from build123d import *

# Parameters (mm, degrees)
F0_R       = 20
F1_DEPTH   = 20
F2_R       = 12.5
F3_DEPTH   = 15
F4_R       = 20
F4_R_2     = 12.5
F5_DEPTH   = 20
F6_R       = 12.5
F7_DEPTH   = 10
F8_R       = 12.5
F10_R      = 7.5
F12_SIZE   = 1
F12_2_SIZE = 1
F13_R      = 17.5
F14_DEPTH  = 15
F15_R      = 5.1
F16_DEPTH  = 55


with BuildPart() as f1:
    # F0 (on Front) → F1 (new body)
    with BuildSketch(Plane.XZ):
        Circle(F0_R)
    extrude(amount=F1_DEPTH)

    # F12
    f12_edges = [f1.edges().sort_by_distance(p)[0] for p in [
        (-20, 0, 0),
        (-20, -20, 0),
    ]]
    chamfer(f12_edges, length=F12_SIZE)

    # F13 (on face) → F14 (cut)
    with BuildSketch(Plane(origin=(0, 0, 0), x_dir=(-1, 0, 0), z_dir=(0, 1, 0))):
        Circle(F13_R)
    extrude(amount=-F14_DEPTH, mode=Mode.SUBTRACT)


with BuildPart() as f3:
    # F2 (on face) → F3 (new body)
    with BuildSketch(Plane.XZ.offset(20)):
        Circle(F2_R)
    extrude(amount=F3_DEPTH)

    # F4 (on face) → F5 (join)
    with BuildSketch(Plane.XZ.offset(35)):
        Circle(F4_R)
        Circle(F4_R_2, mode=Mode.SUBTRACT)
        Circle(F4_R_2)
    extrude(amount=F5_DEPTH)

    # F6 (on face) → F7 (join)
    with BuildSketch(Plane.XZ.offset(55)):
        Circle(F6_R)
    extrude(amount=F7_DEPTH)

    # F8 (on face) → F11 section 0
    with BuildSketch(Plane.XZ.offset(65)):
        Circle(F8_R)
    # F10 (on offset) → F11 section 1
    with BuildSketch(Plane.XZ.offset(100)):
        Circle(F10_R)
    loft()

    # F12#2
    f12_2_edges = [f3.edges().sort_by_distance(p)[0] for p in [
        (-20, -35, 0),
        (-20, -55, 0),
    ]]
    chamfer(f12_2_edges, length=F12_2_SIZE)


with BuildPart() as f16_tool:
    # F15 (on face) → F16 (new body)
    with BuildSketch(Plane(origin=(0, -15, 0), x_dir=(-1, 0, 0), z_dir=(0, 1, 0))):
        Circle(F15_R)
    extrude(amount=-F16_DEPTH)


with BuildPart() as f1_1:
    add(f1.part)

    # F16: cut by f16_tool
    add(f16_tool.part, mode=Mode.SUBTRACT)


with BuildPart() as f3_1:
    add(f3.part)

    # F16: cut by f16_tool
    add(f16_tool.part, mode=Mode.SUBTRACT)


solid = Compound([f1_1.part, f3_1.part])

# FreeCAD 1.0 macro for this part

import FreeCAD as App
import Part
import Sketcher
from FreeCAD import Vector
Q = App.Units.Quantity


def edges_at(feature, points):
    """Names of the edges that pass closest to the given points."""
    edges = feature.Shape.Edges
    near = lambda p: min(range(len(edges)), key=lambda i: edges[i].distToShape(Part.Vertex(*p))[0])
    return sorted({f"Edge{near(p) + 1}" for p in points})

doc = App.newDocument("Part")
params = doc.addObject("Spreadsheet::Sheet", "Params")
for row, (alias, value) in enumerate([
    ("sketch1_diameter", "40 mm"),
    ("pad1_length", "20 mm"),
    ("chamfer_size", "1 mm"),
    ("sketch2_diameter", "35 mm"),
    ("pocket1_length", "15 mm"),
    ("sketch3_diameter", "25 mm"),
    ("pad2_length", "15 mm"),
    ("sketch4_diameter", "40 mm"),
    ("pad3_length", "20 mm"),
    ("sketch5_diameter", "25 mm"),
    ("pad4_length", "10 mm"),
    ("sketch6_diameter", "25 mm"),
    ("sketch7_diameter", "15 mm"),
    ("chamfer2_size", "1 mm"),
    ("sketch8_diameter", "10.2 mm"),
    ("pad5_length", "55 mm"),
], start=1):
    params.set(f"A{row}", alias)
    params.set(f"B{row}", "=" + value)
    params.setAlias(f"B{row}", alias)

body = doc.addObject("PartDesign::Body", "Body")

# Sketch on XZ plane
sketch1 = body.newObject("Sketcher::SketchObject", "Sketch")
sketch1.AttachmentSupport = (doc.getObject("XZ_Plane"), [""])
sketch1.MapMode = "FlatFace"
sketch1.addGeometry(Part.Circle(Vector(0, 0, 0), Vector(0, 0, 1), 20), False)
sketch1.addConstraint(Sketcher.Constraint("Coincident", 0, 3, -1, 1))
sketch1.addConstraint(Sketcher.Constraint("Diameter", 0, Q("40 mm")))
sketch1.setExpression("Constraints[1]", "Params.sketch1_diameter")
pad1 = body.newObject("PartDesign::Pad", "Pad")
pad1.Profile = sketch1
pad1.setExpression("Length", "Params.pad1_length")
doc.recompute()

chamfer = body.newObject("PartDesign::Chamfer", "Chamfer")
chamfer.Base = (pad1, edges_at(pad1, [(-20, 0, 0), (-20, -20, 0)]))
chamfer.setExpression("Size", "Params.chamfer_size")

# Sketch on XZ plane
sketch2 = body.newObject("Sketcher::SketchObject", "Sketch001")
sketch2.AttachmentSupport = (doc.getObject("XZ_Plane"), [""])
sketch2.MapMode = "FlatFace"
sketch2.addGeometry(Part.Circle(Vector(0, 0, 0), Vector(0, 0, 1), 17.5), False)
sketch2.addConstraint(Sketcher.Constraint("Coincident", 0, 3, -1, 1))
sketch2.addConstraint(Sketcher.Constraint("Diameter", 0, Q("35 mm")))
sketch2.setExpression("Constraints[1]", "Params.sketch2_diameter")
pocket1 = body.newObject("PartDesign::Pocket", "Pocket")
pocket1.Profile = sketch2
pocket1.setExpression("Length", "Params.pocket1_length")
pocket1.Reversed = True
body2 = doc.addObject("PartDesign::Body", "Body001")

# Sketch on XZ plane
sketch3 = body2.newObject("Sketcher::SketchObject", "Sketch002")
sketch3.AttachmentSupport = (doc.getObject("XZ_Plane001"), [""])
sketch3.MapMode = "FlatFace"
sketch3.AttachmentOffset = App.Placement(Vector(0, 0, 20), App.Rotation())
sketch3.addGeometry(Part.Circle(Vector(0, 0, 0), Vector(0, 0, 1), 12.5), False)
sketch3.addConstraint(Sketcher.Constraint("Coincident", 0, 3, -1, 1))
sketch3.addConstraint(Sketcher.Constraint("Diameter", 0, Q("25 mm")))
sketch3.setExpression("Constraints[1]", "Params.sketch3_diameter")
pad2 = body2.newObject("PartDesign::Pad", "Pad001")
pad2.Profile = sketch3
pad2.setExpression("Length", "Params.pad2_length")

# Sketch on XZ plane
sketch4 = body2.newObject("Sketcher::SketchObject", "Sketch003")
sketch4.AttachmentSupport = (doc.getObject("XZ_Plane001"), [""])
sketch4.MapMode = "FlatFace"
sketch4.AttachmentOffset = App.Placement(Vector(0, 0, 35), App.Rotation())
sketch4.addGeometry(Part.Circle(Vector(0, 0, 0), Vector(0, 0, 1), 20), False)
sketch4.addConstraint(Sketcher.Constraint("Coincident", 0, 3, -1, 1))
sketch4.addConstraint(Sketcher.Constraint("Diameter", 0, Q("40 mm")))
sketch4.setExpression("Constraints[1]", "Params.sketch4_diameter")
pad3 = body2.newObject("PartDesign::Pad", "Pad002")
pad3.Profile = sketch4
pad3.setExpression("Length", "Params.pad3_length")

# Sketch on XZ plane
sketch5 = body2.newObject("Sketcher::SketchObject", "Sketch004")
sketch5.AttachmentSupport = (doc.getObject("XZ_Plane001"), [""])
sketch5.MapMode = "FlatFace"
sketch5.AttachmentOffset = App.Placement(Vector(0, 0, 55), App.Rotation())
sketch5.addGeometry(Part.Circle(Vector(0, 0, 0), Vector(0, 0, 1), 12.5), False)
sketch5.addConstraint(Sketcher.Constraint("Coincident", 0, 3, -1, 1))
sketch5.addConstraint(Sketcher.Constraint("Diameter", 0, Q("25 mm")))
sketch5.setExpression("Constraints[1]", "Params.sketch5_diameter")
pad4 = body2.newObject("PartDesign::Pad", "Pad003")
pad4.Profile = sketch5
pad4.setExpression("Length", "Params.pad4_length")

# Sketch on XZ plane
sketch6 = body2.newObject("Sketcher::SketchObject", "Sketch005")
sketch6.AttachmentSupport = (doc.getObject("XZ_Plane001"), [""])
sketch6.MapMode = "FlatFace"
sketch6.AttachmentOffset = App.Placement(Vector(0, 0, 65), App.Rotation())
sketch6.addGeometry(Part.Circle(Vector(0, 0, 0), Vector(0, 0, 1), 12.5), False)
sketch6.addConstraint(Sketcher.Constraint("Coincident", 0, 3, -1, 1))
sketch6.addConstraint(Sketcher.Constraint("Diameter", 0, Q("25 mm")))
sketch6.setExpression("Constraints[1]", "Params.sketch6_diameter")

# Sketch on XZ plane
sketch7 = body2.newObject("Sketcher::SketchObject", "Sketch006")
sketch7.AttachmentSupport = (doc.getObject("XZ_Plane001"), [""])
sketch7.MapMode = "FlatFace"
sketch7.AttachmentOffset = App.Placement(Vector(0, 0, 100), App.Rotation())
sketch7.addGeometry(Part.Circle(Vector(0, 0, 0), Vector(0, 0, 1), 7.5), False)
sketch7.addConstraint(Sketcher.Constraint("Coincident", 0, 3, -1, 1))
sketch7.addConstraint(Sketcher.Constraint("Diameter", 0, Q("15 mm")))
sketch7.setExpression("Constraints[1]", "Params.sketch7_diameter")

additiveloft = body2.newObject("PartDesign::AdditiveLoft", "AdditiveLoft")
additiveloft.Profile = sketch6
additiveloft.Sections = [sketch7]
doc.recompute()

chamfer2 = body2.newObject("PartDesign::Chamfer", "Chamfer001")
chamfer2.Base = (additiveloft, edges_at(additiveloft, [(-20, -35, 0), (-20, -55, 0)]))
chamfer2.setExpression("Size", "Params.chamfer2_size")
body3 = doc.addObject("PartDesign::Body", "Body002")

# Sketch on XZ plane
sketch8 = body3.newObject("Sketcher::SketchObject", "Sketch007")
sketch8.AttachmentSupport = (doc.getObject("XZ_Plane002"), [""])
sketch8.MapMode = "FlatFace"
sketch8.AttachmentOffset = App.Placement(Vector(0, 0, 15), App.Rotation())
sketch8.addGeometry(Part.Circle(Vector(0, 0, 0), Vector(0, 0, 1), 5.1), False)
sketch8.addConstraint(Sketcher.Constraint("Coincident", 0, 3, -1, 1))
sketch8.addConstraint(Sketcher.Constraint("Diameter", 0, Q("10.2 mm")))
sketch8.setExpression("Constraints[1]", "Params.sketch8_diameter")
pad5 = body3.newObject("PartDesign::Pad", "Pad004")
pad5.Profile = sketch8
pad5.setExpression("Length", "Params.pad5_length")
doc.recompute()

body4 = doc.addObject("PartDesign::Body", "Body003")
body4.BaseFeature = body3
boolean = body.newObject("PartDesign::Boolean", "Boolean")
boolean.Type = "Cut"
boolean.addObjects([body4])
doc.recompute()

boolean2 = body2.newObject("PartDesign::Boolean", "Boolean001")
boolean2.Type = "Cut"
boolean2.addObjects([body3])

doc.recompute()
